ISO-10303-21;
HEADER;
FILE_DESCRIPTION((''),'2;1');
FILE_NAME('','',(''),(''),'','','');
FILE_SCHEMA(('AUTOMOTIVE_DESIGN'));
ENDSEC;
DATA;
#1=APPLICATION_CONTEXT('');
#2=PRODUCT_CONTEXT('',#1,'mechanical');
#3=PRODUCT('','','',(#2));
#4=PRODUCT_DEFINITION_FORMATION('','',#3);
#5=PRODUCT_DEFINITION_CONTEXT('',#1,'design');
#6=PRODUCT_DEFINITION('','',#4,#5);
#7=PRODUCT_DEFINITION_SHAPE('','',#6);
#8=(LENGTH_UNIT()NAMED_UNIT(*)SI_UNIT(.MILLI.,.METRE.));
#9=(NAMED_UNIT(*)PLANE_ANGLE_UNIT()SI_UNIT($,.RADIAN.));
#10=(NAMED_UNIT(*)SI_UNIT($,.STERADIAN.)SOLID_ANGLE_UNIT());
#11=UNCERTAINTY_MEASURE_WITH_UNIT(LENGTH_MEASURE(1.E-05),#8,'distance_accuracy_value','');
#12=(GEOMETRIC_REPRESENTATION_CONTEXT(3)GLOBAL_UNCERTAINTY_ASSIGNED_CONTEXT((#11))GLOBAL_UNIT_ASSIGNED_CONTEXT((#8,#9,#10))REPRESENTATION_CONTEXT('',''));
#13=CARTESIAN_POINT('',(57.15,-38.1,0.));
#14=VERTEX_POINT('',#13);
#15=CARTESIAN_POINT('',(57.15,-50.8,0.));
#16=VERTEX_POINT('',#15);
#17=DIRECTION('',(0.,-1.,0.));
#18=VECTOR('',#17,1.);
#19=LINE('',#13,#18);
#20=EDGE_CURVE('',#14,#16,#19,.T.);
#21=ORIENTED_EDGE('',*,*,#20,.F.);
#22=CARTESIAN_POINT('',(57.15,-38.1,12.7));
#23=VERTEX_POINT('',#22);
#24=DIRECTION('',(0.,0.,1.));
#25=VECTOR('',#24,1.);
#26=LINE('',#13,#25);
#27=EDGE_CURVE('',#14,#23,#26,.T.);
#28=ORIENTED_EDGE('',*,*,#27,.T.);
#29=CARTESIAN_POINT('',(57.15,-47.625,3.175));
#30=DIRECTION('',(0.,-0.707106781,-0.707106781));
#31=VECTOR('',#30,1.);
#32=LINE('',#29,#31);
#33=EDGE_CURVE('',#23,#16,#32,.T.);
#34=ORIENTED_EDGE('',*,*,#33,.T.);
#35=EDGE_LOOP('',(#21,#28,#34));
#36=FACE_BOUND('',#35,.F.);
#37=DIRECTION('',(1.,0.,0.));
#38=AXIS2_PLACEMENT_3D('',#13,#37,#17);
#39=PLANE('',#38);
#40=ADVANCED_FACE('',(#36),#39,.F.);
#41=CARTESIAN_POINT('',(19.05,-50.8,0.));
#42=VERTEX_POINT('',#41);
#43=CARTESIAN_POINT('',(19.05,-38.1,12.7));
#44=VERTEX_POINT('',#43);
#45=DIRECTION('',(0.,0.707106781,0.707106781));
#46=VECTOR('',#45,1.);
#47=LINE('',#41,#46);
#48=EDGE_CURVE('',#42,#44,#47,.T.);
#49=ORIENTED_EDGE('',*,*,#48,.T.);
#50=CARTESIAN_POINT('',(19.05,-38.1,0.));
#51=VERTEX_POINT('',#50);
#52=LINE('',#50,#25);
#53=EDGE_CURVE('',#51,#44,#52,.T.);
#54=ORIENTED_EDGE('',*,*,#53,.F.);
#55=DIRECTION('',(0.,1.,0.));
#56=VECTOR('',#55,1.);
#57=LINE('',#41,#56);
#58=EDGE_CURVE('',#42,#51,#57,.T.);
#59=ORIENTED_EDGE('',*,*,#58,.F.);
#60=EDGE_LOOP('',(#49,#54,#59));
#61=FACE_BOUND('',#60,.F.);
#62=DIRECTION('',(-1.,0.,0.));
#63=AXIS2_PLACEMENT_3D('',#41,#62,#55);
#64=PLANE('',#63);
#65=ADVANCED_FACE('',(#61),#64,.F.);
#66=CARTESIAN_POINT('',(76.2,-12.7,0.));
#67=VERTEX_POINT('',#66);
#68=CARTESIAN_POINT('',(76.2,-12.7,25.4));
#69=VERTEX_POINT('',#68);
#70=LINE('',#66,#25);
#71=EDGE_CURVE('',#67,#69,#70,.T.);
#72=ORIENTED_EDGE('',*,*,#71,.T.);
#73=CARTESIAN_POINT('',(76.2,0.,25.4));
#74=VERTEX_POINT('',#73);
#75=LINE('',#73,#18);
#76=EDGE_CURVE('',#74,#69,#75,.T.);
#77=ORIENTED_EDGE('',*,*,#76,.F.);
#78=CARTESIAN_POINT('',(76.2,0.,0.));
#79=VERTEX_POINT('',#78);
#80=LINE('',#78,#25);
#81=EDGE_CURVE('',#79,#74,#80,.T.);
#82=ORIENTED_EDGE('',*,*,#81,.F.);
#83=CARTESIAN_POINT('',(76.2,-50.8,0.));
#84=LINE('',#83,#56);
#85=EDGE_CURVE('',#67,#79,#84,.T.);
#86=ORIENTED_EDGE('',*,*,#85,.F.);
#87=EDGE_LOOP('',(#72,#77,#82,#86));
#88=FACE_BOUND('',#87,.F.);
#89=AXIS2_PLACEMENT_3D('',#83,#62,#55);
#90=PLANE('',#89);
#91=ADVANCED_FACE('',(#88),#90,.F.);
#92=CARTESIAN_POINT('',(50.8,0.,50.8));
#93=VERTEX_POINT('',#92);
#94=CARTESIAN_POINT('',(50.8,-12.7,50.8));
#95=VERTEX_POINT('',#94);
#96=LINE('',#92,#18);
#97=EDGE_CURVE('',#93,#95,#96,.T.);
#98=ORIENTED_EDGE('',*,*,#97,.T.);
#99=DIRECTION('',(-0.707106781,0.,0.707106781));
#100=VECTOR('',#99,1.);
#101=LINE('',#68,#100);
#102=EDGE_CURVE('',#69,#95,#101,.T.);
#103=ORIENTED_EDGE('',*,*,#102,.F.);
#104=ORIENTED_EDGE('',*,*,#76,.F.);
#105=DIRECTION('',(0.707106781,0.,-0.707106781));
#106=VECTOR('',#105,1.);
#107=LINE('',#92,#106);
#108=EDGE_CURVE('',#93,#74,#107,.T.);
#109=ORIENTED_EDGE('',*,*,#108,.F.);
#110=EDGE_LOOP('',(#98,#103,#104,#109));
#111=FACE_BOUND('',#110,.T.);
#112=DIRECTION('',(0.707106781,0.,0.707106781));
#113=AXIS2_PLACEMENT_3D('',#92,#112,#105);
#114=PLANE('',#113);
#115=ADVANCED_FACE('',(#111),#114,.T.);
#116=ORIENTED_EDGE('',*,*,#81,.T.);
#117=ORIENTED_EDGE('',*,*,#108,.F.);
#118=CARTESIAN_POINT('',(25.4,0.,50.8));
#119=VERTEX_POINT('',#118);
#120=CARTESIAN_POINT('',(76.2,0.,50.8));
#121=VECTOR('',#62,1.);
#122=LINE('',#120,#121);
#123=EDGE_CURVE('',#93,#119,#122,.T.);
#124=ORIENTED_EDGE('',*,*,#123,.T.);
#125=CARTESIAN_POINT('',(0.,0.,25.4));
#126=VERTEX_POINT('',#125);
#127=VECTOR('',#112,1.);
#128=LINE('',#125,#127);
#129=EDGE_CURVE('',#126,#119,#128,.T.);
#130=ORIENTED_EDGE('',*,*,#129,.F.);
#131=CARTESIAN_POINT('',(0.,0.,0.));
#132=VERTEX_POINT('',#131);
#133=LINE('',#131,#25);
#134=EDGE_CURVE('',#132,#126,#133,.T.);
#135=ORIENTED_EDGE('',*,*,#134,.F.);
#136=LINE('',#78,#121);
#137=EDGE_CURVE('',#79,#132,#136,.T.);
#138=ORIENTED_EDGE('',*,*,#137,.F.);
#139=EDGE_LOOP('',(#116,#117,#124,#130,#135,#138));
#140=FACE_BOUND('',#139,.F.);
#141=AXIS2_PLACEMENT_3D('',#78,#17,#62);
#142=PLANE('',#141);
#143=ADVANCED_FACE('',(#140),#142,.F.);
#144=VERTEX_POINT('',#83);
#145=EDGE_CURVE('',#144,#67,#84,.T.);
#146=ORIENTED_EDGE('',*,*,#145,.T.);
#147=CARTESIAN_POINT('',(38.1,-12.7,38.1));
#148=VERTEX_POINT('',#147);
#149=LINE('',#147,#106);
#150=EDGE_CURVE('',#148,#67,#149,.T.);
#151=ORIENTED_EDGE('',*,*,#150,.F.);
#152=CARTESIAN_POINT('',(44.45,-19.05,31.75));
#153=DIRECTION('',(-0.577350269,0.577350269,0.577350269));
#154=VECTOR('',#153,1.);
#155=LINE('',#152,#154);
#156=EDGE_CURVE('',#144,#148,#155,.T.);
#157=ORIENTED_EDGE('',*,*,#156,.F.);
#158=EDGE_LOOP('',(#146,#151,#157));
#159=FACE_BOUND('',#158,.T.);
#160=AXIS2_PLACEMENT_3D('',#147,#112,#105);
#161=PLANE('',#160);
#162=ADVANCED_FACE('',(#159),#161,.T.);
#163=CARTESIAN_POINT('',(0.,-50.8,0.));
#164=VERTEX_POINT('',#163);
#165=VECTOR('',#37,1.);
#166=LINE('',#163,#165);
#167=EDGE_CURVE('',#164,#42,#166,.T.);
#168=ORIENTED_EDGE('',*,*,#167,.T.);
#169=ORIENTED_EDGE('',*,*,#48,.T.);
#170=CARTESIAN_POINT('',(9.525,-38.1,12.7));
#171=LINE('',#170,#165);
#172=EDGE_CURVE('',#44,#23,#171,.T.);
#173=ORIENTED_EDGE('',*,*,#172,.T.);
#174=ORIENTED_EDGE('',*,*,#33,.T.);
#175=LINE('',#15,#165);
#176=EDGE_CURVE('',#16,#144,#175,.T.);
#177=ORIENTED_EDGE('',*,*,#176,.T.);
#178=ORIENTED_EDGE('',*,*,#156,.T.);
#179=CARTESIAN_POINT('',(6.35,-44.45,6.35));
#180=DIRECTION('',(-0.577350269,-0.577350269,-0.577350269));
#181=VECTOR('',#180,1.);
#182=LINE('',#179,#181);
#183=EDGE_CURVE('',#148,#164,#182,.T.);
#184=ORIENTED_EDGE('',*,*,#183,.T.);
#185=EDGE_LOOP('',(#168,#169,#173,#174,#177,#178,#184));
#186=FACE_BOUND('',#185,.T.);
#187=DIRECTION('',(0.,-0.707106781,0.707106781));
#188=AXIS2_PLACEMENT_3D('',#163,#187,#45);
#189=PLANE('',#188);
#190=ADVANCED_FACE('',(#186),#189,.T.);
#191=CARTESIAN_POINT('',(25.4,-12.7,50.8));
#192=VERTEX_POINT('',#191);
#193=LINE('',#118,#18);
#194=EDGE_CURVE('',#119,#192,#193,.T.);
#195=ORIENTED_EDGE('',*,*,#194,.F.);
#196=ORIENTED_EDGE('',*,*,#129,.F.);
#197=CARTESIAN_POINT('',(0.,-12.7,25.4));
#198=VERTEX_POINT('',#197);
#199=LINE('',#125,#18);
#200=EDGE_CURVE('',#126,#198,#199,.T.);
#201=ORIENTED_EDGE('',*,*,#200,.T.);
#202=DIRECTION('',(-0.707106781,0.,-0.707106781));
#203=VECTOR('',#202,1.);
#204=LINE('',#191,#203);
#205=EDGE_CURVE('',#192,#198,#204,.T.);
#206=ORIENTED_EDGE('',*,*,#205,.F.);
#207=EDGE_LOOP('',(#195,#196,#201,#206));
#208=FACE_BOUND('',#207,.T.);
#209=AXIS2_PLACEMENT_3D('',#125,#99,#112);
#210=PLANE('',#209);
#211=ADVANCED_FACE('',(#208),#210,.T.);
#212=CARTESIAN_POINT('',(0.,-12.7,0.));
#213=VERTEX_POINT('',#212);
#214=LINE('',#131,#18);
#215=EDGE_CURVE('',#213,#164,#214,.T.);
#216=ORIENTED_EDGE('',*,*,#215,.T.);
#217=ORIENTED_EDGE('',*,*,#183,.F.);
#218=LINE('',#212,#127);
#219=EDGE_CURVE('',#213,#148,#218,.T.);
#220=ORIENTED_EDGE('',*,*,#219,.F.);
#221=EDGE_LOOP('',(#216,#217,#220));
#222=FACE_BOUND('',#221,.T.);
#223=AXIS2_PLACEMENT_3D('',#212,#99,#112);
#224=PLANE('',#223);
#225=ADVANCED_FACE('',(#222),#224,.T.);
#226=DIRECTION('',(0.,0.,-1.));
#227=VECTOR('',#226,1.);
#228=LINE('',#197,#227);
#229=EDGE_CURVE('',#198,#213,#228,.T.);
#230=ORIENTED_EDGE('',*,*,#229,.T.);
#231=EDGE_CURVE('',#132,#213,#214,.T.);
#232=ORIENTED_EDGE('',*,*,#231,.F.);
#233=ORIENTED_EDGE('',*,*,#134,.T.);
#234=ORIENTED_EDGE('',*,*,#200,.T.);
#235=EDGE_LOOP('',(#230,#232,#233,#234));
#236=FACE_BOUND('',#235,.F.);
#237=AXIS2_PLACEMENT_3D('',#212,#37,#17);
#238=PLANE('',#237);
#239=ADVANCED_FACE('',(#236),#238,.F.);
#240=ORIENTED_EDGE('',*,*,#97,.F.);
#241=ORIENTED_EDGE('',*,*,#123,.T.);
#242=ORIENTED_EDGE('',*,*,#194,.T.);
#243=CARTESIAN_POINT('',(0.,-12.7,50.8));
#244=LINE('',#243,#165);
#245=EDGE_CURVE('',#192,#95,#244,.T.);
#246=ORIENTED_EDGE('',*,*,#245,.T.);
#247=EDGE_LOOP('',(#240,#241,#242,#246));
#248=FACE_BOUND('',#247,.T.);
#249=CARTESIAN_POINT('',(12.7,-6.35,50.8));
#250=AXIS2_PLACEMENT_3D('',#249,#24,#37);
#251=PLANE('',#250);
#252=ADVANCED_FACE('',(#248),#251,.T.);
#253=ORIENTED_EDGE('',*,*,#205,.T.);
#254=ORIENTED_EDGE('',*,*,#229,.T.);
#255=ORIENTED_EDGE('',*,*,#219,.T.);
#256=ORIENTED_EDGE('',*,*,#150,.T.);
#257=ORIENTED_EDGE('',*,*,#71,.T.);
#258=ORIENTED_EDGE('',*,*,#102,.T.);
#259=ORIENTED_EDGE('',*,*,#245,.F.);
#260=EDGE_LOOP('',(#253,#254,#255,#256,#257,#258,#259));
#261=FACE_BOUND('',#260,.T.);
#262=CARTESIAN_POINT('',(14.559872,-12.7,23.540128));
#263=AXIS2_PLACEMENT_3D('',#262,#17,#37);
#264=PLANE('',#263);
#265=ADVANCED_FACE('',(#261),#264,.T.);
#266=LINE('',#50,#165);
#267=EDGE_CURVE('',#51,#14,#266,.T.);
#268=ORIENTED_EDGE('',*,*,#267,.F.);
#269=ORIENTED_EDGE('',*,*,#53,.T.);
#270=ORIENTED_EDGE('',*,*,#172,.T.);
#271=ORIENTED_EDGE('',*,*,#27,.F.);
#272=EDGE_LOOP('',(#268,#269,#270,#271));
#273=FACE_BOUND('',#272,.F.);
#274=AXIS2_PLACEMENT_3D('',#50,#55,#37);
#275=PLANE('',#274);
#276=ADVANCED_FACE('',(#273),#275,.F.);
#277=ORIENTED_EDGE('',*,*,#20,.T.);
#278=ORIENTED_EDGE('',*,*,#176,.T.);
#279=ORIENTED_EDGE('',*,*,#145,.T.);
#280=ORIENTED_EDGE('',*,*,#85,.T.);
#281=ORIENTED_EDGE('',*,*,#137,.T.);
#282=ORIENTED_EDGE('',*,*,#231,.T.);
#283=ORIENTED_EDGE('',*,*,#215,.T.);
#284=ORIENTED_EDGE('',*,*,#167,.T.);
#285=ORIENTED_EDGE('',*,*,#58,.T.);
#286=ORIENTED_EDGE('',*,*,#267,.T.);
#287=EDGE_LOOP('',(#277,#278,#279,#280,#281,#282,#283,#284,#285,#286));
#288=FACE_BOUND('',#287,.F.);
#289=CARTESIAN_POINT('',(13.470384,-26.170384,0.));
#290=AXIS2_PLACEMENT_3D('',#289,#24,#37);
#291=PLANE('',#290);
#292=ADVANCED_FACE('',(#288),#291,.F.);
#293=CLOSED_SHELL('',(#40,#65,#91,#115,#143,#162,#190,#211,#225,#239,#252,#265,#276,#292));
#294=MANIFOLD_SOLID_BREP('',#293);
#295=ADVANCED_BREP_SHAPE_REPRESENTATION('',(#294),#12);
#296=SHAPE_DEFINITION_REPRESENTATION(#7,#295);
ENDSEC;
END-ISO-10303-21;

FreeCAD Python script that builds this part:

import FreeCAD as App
import Part
import Sketcher

V = App.Vector
Q = App.Units.Quantity


def add_polygon(sketch, points):
    """Adds a closed chain of lines whose ends are joined by coincident constraints."""
    first, n = sketch.GeometryCount, len(points)
    for a, b in zip(points, points[1:] + points[:1]):
        sketch.addGeometry(Part.LineSegment(App.Vector(*a, 0), App.Vector(*b, 0)), False)
    for i in range(n):
        sketch.addConstraint(Sketcher.Constraint("Coincident", first + i, 2, first + (i + 1) % n, 1))

doc = App.newDocument("Part")
body = doc.addObject("PartDesign::Body", "Body")
body.AllowCompound = True

sketch1 = body.newObject("Sketcher::SketchObject", "Sketch")
sketch1.AttachmentSupport = (doc.getObject("XY_Plane"), [""])
sketch1.MapMode = "FlatFace"
add_polygon(sketch1, [(0, 0), (0, -13), (76, -13), (76, 0)])
sketch1.addConstraint([
    Sketcher.Constraint("Vertical", 0),
    Sketcher.Constraint("Horizontal", 1),
    Sketcher.Constraint("Vertical", 2),
    Sketcher.Constraint("Horizontal", 3),
    Sketcher.Constraint("Coincident", 3, 2, -1, 1),
    Sketcher.Constraint("DistanceX", 1, 1, 1, 2, Q("3 in")),
    Sketcher.Constraint("DistanceY", 0, 2, 0, 1, Q("0.5 in")),
])
pad1 = body.newObject("PartDesign::Pad", "Pad")
pad1.Profile = sketch1
pad1.Length = Q("2 in")

sketch2 = body.newObject("Sketcher::SketchObject", "Sketch001")
sketch2.AttachmentSupport = (doc.getObject("XY_Plane"), [""])
sketch2.MapMode = "FlatFace"
add_polygon(sketch2, [(38, -13), (0, -51), (19, -51), (19, -38), (57, -38), (57, -51), (76, -51)])
sketch2.addConstraint([
    Sketcher.Constraint("Horizontal", 1),
    Sketcher.Constraint("Vertical", 2),
    Sketcher.Constraint("Horizontal", 3),
    Sketcher.Constraint("Vertical", 4),
    Sketcher.Constraint("Horizontal", 5),
    Sketcher.Constraint("PointOnObject", 0, 2, -2),
    Sketcher.Constraint("Perpendicular", 0, 6),
    Sketcher.Constraint("Horizontal", 1, 2, 4, 2),
    Sketcher.Constraint("Equal", 1, 5),
    Sketcher.Constraint("Equal", 0, 6),
    Sketcher.Constraint("DistanceX", 3, 1, 3, 2, Q("1.5 in")),
    Sketcher.Constraint("DistanceY", 2, 1, 2, 2, Q("0.5 in")),
    Sketcher.Constraint("DistanceY", 0, 2, -1, 1, Q("2 in")),
    Sketcher.Constraint("DistanceX", -1, 1, 5, 2, Q("3 in")),
])
pad2 = body.newObject("PartDesign::Pad", "Pad001")
pad2.Profile = sketch2
pad2.Length = Q("1.5 in")

sketch3 = body.newObject("Sketcher::SketchObject", "Sketch002")
sketch3.AttachmentSupport = (doc.getObject("XY_Plane"), [""])
sketch3.MapMode = "FlatFace"
add_polygon(sketch3, [(76, -13), (38, -13), (76, -51)])
sketch3.addConstraint([
    Sketcher.Constraint("Horizontal", 0),
    Sketcher.Constraint("Vertical", 2),
    Sketcher.Constraint("Equal", 0, 2),
    Sketcher.Constraint("DistanceX", 0, 2, 0, 1, Q("1.5 in")),
    Sketcher.Constraint("DistanceX", -1, 1, 1, 2, Q("3 in")),
    Sketcher.Constraint("DistanceY", 1, 2, -1, 1, Q("2 in")),
])
pad3 = body.newObject("PartDesign::Pad", "Pad002")
pad3.Profile = sketch3
pad3.Length = Q("1.5 in")

sketch4 = body.newObject("Sketcher::SketchObject", "Sketch003")
sketch4.AttachmentSupport = (doc.getObject("XY_Plane"), [""])
sketch4.MapMode = "FlatFace"
add_polygon(sketch4, [(0, -13), (0, -51), (38, -13)])
sketch4.addConstraint([
    Sketcher.Constraint("Vertical", 0),
    Sketcher.Constraint("Horizontal", 2),
    Sketcher.Constraint("PointOnObject", 0, 2, -2),
    Sketcher.Constraint("Equal", 2, 0),
    Sketcher.Constraint("DistanceX", 2, 2, 2, 1, Q("1.5 in")),
    Sketcher.Constraint("DistanceY", 0, 2, -1, 1, Q("2 in")),
])
pad4 = body.newObject("PartDesign::Pad", "Pad003")
pad4.Profile = sketch4
pad4.Length = Q("1.5 in")

sketch5 = body.newObject("Sketcher::SketchObject", "Sketch004")
sketch5.AttachmentSupport = (doc.getObject("YZ_Plane"), [""])
sketch5.MapMode = "FlatFace"
add_polygon(sketch5, [(-51, 0), (-13, 38), (-51, 38)])
sketch5.addConstraint([
    Sketcher.Constraint("Horizontal", 1),
    Sketcher.Constraint("Vertical", 2),
    Sketcher.Constraint("PointOnObject", 2, 2, -1),
    Sketcher.Constraint("Equal", 1, 2),
    Sketcher.Constraint("DistanceX", 1, 2, 1, 1, Q("1.5 in")),
    Sketcher.Constraint("DistanceX", 1, 2, -1, 1, Q("2 in")),
])
pocket1 = body.newObject("PartDesign::Pocket", "Pocket")
pocket1.Profile = sketch5
pocket1.Type = "ThroughAll"
pocket1.Reversed = True

sketch6 = body.newObject("Sketcher::SketchObject", "Sketch005")
sketch6.AttachmentSupport = (doc.getObject("XZ_Plane"), [""])
sketch6.MapMode = "FlatFace"
add_polygon(sketch6, [(0, 51), (0, 25), (25, 51)])
add_polygon(sketch6, [(51, 51), (76, 25), (76, 51)])
sketch6.addConstraint([
    Sketcher.Constraint("Vertical", 0),
    Sketcher.Constraint("Horizontal", 2),
    Sketcher.Constraint("Vertical", 4),
    Sketcher.Constraint("Horizontal", 5),
    Sketcher.Constraint("PointOnObject", 0, 2, -2),
    Sketcher.Constraint("Perpendicular", 1, 3),
    Sketcher.Constraint("Horizontal", 0, 2, 3, 2),
    Sketcher.Constraint("Horizontal", 2, 2, 4, 2),
    Sketcher.Constraint("Equal", 2, 5),
    Sketcher.Constraint("DistanceX", 2, 2, 2, 1, Q("1 in")),
    Sketcher.Constraint("DistanceY", -1, 1, 0, 2, Q("1 in")),
    Sketcher.Constraint("DistanceX", -1, 1, 3, 2, Q("3 in")),
])
pocket2 = body.newObject("PartDesign::Pocket", "Pocket001")
pocket2.Profile = sketch6
pocket2.Type = "ThroughAll"
pocket2.Reversed = True

sketch7 = body.newObject("Sketcher::SketchObject", "Sketch006")
sketch7.AttachmentSupport = (doc.getObject("XZ_Plane"), [""])
sketch7.MapMode = "FlatFace"
sketch7.AttachmentOffset = App.Placement(V(0, 0, 0.5 * 25.4), App.Rotation())
add_polygon(sketch7, [(0, 25), (0, 0), (38, 38), (13, 38)])
sketch7.addConstraint([
    Sketcher.Constraint("Vertical", 0),
    Sketcher.Constraint("Horizontal", 2),
    Sketcher.Constraint("Coincident", 0, 2, -1, 1),
    Sketcher.Constraint("Parallel", 1, 3),
    Sketcher.Constraint("Equal", 2, 0),
    Sketcher.Constraint("DistanceX", 2, 2, 2, 1, Q("1 in")),
    Sketcher.Constraint("DistanceX", -1, 1, 1, 2, Q("1.5 in")),
])
pocket3 = body.newObject("PartDesign::Pocket", "Pocket002")
pocket3.Profile = sketch7
pocket3.Length = 38.101
pocket3.Reversed = True

sketch8 = body.newObject("Sketcher::SketchObject", "Sketch007")
sketch8.AttachmentSupport = (doc.getObject("XZ_Plane"), [""])
sketch8.MapMode = "FlatFace"
sketch8.AttachmentOffset = App.Placement(V(0, 0, 0.5 * 25.4), App.Rotation())
add_polygon(sketch8, [(64, 38), (38, 38), (76, 0), (76, 25)])
sketch8.addConstraint([
    Sketcher.Constraint("Horizontal", 0),
    Sketcher.Constraint("Vertical", 2),
    Sketcher.Constraint("PointOnObject", 1, 2, -1),
    Sketcher.Constraint("Parallel", 1, 3),
    Sketcher.Constraint("Equal", 0, 2),
    Sketcher.Constraint("DistanceX", 0, 2, 0, 1, Q("1 in")),
    Sketcher.Constraint("DistanceX", -1, 1, 1, 2, Q("3 in")),
    Sketcher.Constraint("DistanceX", -1, 1, 0, 2, Q("1.5 in")),
])
pocket4 = body.newObject("PartDesign::Pocket", "Pocket003")
pocket4.Profile = sketch8
pocket4.Length = 38.101
pocket4.Reversed = True

doc.recompute()
